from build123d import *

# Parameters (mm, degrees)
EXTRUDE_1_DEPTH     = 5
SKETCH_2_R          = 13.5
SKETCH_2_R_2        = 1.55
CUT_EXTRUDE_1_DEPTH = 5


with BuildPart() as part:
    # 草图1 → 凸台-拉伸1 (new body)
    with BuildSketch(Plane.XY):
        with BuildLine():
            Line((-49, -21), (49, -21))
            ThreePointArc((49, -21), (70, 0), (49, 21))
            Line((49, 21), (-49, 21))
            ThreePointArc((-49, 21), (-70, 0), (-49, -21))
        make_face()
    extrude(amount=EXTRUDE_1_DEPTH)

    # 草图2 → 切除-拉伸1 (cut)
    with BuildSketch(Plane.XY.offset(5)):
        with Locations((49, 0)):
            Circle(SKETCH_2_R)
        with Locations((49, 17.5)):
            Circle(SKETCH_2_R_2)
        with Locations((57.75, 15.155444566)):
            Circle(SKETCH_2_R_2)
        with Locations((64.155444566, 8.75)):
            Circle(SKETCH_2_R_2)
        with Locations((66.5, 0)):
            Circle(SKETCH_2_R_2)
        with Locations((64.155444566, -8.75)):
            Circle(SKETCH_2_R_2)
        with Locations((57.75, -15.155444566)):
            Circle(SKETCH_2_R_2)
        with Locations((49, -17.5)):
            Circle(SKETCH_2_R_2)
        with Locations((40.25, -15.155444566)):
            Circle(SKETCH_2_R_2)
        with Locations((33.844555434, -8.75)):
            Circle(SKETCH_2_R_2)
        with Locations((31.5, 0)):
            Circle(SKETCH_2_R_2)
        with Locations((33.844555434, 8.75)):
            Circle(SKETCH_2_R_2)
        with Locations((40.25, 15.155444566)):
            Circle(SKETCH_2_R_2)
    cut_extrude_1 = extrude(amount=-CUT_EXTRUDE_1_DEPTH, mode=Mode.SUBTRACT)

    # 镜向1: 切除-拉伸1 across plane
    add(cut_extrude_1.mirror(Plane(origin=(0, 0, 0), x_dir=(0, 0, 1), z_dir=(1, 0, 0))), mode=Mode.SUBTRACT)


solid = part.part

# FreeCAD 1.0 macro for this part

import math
import FreeCAD as App
import Part
import Sketcher

V = App.Vector

doc = App.newDocument("Part")
params = doc.addObject("Spreadsheet::Sheet", "Params")
for row, (alias, value) in enumerate([
    ("sketch1_radius", "21 mm"),
    ("sketch1_width", "98 mm"),
    ("pad1_length", "5 mm"),
    ("sketch2_diameter", "27 mm"),
    ("sketch2_diameter2", "3.1 mm"),
    ("pocket1_length", "5 mm"),
], start=1):
    params.set(f"A{row}", alias)
    params.set(f"B{row}", "=" + value)
    params.setAlias(f"B{row}", alias)

body = doc.addObject("PartDesign::Body", "Body")

sketch1 = body.newObject("Sketcher::SketchObject", "Sketch")
sketch1.AttachmentSupport = (doc.getObject("XY_Plane"), [""])
sketch1.MapMode = "FlatFace"
sketch1.addGeometry([
    Part.LineSegment(V(-49, -21, 0), V(49, -21, 0)),
    Part.ArcOfCircle(Part.Circle(V(49, 0, 0), V(0, 0, 1), 21), math.radians(-90), math.radians(90)),
    Part.LineSegment(V(49, 21, 0), V(-49, 21, 0)),
    Part.ArcOfCircle(Part.Circle(V(-49, 0, 0), V(0, 0, 1), 21), math.radians(90), math.radians(270)),
], False)
sketch1.addConstraint([
    Sketcher.Constraint("Tangent", 0, 2, 1, 1),
    Sketcher.Constraint("Tangent", 1, 2, 2, 1),
    Sketcher.Constraint("Tangent", 2, 2, 3, 1),
    Sketcher.Constraint("Tangent", 3, 2, 0, 1),
    Sketcher.Constraint("Horizontal", 0),
    Sketcher.Constraint("Horizontal", 2),
    Sketcher.Constraint("Symmetric", 1, 3, 3, 3, -1, 1),
    Sketcher.Constraint("Radius", 1, 21.0),
    Sketcher.Constraint("DistanceX", 0, 1, 0, 2, 98.0),
])
sketch1.setExpression("Constraints[7]", "Params.sketch1_radius")
sketch1.setExpression("Constraints[8]", "Params.sketch1_width")
pad1 = body.newObject("PartDesign::Pad", "Pad")
pad1.Profile = sketch1
pad1.setExpression("Length", "Params.pad1_length")

sketch2 = body.newObject("Sketcher::SketchObject", "Sketch001")
sketch2.AttachmentSupport = (doc.getObject("XY_Plane"), [""])
sketch2.MapMode = "FlatFace"
sketch2.AttachmentOffset = App.Placement(V(0, 0, 5), App.Rotation())
sketch2.addGeometry([
    Part.Circle(V(49, 0, 0), V(0, 0, 1), 13.5),
    Part.Circle(V(49, 17.5, 0), V(0, 0, 1), 1.6),
    Part.Circle(V(57.8, 15.2, 0), V(0, 0, 1), 1.6),
    Part.Circle(V(64.2, 8.8, 0), V(0, 0, 1), 1.6),
    Part.Circle(V(66.5, 0, 0), V(0, 0, 1), 1.6),
    Part.Circle(V(64.2, -8.8, 0), V(0, 0, 1), 1.6),
    Part.Circle(V(57.8, -15.2, 0), V(0, 0, 1), 1.6),
    Part.Circle(V(49, -17.5, 0), V(0, 0, 1), 1.6),
    Part.Circle(V(40.2, -15.2, 0), V(0, 0, 1), 1.6),
    Part.Circle(V(33.8, -8.8, 0), V(0, 0, 1), 1.6),
    Part.Circle(V(31.5, 0, 0), V(0, 0, 1), 1.6),
    Part.Circle(V(33.8, 8.8, 0), V(0, 0, 1), 1.6),
    Part.Circle(V(40.2, 15.2, 0), V(0, 0, 1), 1.6),
], False)
sketch2.addConstraint([
    Sketcher.Constraint("Equal", 1, 2),
    Sketcher.Constraint("Equal", 2, 3),
    Sketcher.Constraint("Equal", 3, 4),
    Sketcher.Constraint("Equal", 4, 5),
    Sketcher.Constraint("Equal", 5, 6),
    Sketcher.Constraint("Equal", 6, 7),
    Sketcher.Constraint("Equal", 7, 8),
    Sketcher.Constraint("Equal", 8, 9),
    Sketcher.Constraint("Equal", 9, 10),
    Sketcher.Constraint("Equal", 10, 11),
    Sketcher.Constraint("Equal", 11, 12),
    Sketcher.Constraint("Symmetric", 3, 3, 5, 3, -1),
    Sketcher.Constraint("Symmetric", 2, 3, 6, 3, -1),
    Sketcher.Constraint("Symmetric", 1, 3, 7, 3, -1),
    Sketcher.Constraint("Symmetric", 9, 3, 11, 3, -1),
    Sketcher.Constraint("Symmetric", 8, 3, 12, 3, -1),
    Sketcher.Constraint("PointOnObject", 0, 3, -1),
    Sketcher.Constraint("PointOnObject", 4, 3, -1),
    Sketcher.Constraint("PointOnObject", 10, 3, -1),
    Sketcher.Constraint("Horizontal", 6, 3, 8, 3),
    Sketcher.Constraint("Horizontal", 5, 3, 9, 3),
    Sketcher.Constraint("Vertical", 0, 3, 1, 3),
    Sketcher.Constraint("Diameter", 0, 27.0),
    Sketcher.Constraint("Diameter", 1, 3.1),
    Sketcher.Constraint("DistanceX", -1, 1, 0, 3, 49.0),
    Sketcher.Constraint("DistanceY", -1, 1, 1, 3, 17.5),
    Sketcher.Constraint("DistanceX", -1, 1, 4, 3, 66.5),
    Sketcher.Constraint("DistanceX", -1, 1, 10, 3, 31.5),
    Sketcher.Constraint("DistanceY", 5, 3, 3, 3, 17.5),
    Sketcher.Constraint("DistanceX", 8, 3, 6, 3, 17.5),
    Sketcher.Constraint("DistanceX", -1, 1, 2, 3, 57.75),
    Sketcher.Constraint("DistanceY", 6, 3, 2, 3, 30.310889),
    Sketcher.Constraint("DistanceX", 9, 3, 5, 3, 30.310889),
    Sketcher.Constraint("DistanceX", -1, 1, 3, 3, 64.155445),
])
sketch2.setExpression("Constraints[22]", "Params.sketch2_diameter")
sketch2.setExpression("Constraints[23]", "Params.sketch2_diameter2")
pocket1 = body.newObject("PartDesign::Pocket", "Pocket")
pocket1.Profile = sketch2
pocket1.setExpression("Length", "Params.pocket1_length")
doc.recompute()

mirrored = body.newObject("PartDesign::Mirrored", "Mirrored")
mirrored.Originals = [pocket1]
mirrored.MirrorPlane = (doc.getObject("YZ_Plane"), [""])
body.Tip = mirrored

doc.recompute()
